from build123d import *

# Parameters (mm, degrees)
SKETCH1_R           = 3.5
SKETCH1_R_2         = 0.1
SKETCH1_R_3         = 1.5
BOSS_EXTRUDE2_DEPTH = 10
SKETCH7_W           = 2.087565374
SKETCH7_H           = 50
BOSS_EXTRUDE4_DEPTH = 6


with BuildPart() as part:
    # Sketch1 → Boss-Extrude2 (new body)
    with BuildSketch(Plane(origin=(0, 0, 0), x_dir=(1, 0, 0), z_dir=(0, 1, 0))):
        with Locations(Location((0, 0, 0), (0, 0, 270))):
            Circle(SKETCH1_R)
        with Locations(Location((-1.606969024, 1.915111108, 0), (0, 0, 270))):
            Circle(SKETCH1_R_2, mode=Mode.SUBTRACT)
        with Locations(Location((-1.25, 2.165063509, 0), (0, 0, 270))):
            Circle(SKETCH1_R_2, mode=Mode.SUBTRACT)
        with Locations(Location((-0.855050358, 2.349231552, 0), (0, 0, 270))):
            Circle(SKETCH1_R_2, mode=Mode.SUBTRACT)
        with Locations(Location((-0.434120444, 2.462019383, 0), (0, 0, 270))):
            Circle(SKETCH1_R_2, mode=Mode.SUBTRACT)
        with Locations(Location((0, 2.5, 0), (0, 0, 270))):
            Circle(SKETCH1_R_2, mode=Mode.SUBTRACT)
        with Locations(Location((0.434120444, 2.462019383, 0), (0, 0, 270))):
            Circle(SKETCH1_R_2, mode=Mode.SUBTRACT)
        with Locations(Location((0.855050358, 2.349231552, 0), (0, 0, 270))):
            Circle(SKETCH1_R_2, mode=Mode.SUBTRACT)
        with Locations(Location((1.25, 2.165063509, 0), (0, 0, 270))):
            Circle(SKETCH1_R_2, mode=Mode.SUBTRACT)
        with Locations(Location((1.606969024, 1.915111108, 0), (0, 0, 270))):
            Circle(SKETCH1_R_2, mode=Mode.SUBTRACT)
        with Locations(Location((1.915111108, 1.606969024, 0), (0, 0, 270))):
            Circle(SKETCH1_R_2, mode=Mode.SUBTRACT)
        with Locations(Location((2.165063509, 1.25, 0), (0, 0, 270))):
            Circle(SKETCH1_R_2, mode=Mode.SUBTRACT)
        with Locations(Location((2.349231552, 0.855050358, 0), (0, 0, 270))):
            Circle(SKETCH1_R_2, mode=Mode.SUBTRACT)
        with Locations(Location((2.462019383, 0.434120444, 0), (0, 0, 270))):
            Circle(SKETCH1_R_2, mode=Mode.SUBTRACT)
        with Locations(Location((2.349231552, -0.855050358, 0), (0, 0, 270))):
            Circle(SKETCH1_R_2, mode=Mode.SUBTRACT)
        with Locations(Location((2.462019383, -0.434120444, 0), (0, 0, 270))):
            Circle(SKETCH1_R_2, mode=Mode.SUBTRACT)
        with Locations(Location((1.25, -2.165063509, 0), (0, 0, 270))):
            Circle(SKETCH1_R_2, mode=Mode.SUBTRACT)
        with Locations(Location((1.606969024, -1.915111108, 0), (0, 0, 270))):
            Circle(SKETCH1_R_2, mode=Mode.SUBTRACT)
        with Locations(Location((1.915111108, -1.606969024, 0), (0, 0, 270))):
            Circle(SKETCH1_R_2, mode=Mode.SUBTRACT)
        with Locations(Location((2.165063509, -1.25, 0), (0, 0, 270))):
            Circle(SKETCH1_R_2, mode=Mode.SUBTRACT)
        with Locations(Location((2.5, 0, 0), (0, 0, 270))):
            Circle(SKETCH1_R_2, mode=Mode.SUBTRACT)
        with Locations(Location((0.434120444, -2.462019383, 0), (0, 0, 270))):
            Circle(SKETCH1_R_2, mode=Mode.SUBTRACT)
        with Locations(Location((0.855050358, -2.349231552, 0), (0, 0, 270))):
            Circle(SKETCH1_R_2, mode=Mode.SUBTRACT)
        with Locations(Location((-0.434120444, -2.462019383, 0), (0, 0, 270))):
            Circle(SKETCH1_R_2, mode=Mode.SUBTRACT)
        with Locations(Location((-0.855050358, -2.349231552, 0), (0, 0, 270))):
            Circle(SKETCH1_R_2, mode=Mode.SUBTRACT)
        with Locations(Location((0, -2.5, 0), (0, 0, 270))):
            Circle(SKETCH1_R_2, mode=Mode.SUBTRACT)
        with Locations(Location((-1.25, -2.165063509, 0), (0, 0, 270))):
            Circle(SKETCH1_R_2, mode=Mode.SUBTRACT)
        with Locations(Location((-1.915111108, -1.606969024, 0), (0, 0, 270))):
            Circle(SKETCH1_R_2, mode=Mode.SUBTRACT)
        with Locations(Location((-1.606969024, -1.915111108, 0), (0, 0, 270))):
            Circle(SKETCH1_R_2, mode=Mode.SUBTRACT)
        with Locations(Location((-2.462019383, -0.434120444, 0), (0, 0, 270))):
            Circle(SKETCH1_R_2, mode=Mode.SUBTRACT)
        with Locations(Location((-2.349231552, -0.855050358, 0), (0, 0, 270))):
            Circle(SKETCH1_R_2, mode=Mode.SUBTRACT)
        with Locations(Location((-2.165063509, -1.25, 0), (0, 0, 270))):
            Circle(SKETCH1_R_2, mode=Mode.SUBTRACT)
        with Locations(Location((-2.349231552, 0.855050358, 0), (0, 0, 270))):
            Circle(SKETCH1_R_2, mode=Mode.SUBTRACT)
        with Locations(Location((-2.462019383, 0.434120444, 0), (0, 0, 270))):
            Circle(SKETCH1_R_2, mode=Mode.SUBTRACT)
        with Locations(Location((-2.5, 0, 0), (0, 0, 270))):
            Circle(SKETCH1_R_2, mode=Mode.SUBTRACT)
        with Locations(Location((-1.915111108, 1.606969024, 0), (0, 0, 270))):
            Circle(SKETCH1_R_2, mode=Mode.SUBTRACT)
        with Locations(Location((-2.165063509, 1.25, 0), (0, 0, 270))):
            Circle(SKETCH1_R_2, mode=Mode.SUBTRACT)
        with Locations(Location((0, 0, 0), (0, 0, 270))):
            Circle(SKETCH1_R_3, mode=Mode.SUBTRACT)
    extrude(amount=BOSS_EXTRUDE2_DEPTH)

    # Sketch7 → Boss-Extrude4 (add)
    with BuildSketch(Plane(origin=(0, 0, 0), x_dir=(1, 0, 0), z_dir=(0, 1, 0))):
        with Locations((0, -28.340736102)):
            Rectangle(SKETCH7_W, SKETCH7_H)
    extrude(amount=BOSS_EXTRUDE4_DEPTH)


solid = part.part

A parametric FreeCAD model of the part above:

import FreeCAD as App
import Part
import Sketcher


def add_polygon(sketch, points):
    """Adds a closed chain of lines whose ends are joined by coincident constraints."""
    first, n = sketch.GeometryCount, len(points)
    for a, b in zip(points, points[1:] + points[:1]):
        sketch.addGeometry(Part.LineSegment(App.Vector(*a, 0), App.Vector(*b, 0)), False)
    for i in range(n):
        sketch.addConstraint(Sketcher.Constraint("Coincident", first + i, 2, first + (i + 1) % n, 1))

doc = App.newDocument("Part")
body = doc.addObject("PartDesign::Body", "Body")

sketch1 = body.newObject("Sketcher::SketchObject", "Sketch")
sketch1.AttachmentSupport = (doc.getObject("XZ_Plane"), [""])
sketch1.MapMode = "FlatFace"
sketch1.addGeometry(Part.Circle(App.Vector(0, 0, 0), App.Vector(0, 0, 1), 3.5), False)
sketch1.addGeometry(Part.Circle(App.Vector(-1.92, -1.61, 0), App.Vector(0, 0, 1), 0.1), False)
sketch1.addGeometry(Part.Circle(App.Vector(-1.61, -1.92, 0), App.Vector(0, 0, 1), 0.1), False)
sketch1.addGeometry(Part.Circle(App.Vector(-2.35, -0.86, 0), App.Vector(0, 0, 1), 0.1), False)
sketch1.addGeometry(Part.Circle(App.Vector(-2.17, -1.25, 0), App.Vector(0, 0, 1), 0.1), False)
sketch1.addGeometry(Part.Circle(App.Vector(-2.46, -0.43, 0), App.Vector(0, 0, 1), 0.1), False)
sketch1.addGeometry(Part.Circle(App.Vector(-1.25, -2.17, 0), App.Vector(0, 0, 1), 0.1), False)
sketch1.addGeometry(Part.Circle(App.Vector(-0.86, -2.35, 0), App.Vector(0, 0, 1), 0.1), False)
sketch1.addGeometry(Part.Circle(App.Vector(-0.43, -2.46, 0), App.Vector(0, 0, 1), 0.1), False)
sketch1.addGeometry(Part.Circle(App.Vector(0, -2.5, 0), App.Vector(0, 0, 1), 0.1), False)
sketch1.addGeometry(Part.Circle(App.Vector(-2.5, 0, 0), App.Vector(0, 0, 1), 0.1), False)
sketch1.addGeometry(Part.Circle(App.Vector(-2.46, 0.43, 0), App.Vector(0, 0, 1), 0.1), False)
sketch1.addGeometry(Part.Circle(App.Vector(-2.35, 0.86, 0), App.Vector(0, 0, 1), 0.1), False)
sketch1.addGeometry(Part.Circle(App.Vector(-2.17, 1.25, 0), App.Vector(0, 0, 1), 0.1), False)
sketch1.addGeometry(Part.Circle(App.Vector(-1.92, 1.61, 0), App.Vector(0, 0, 1), 0.1), False)
sketch1.addGeometry(Part.Circle(App.Vector(-1.61, 1.92, 0), App.Vector(0, 0, 1), 0.1), False)
sketch1.addGeometry(Part.Circle(App.Vector(-1.25, 2.17, 0), App.Vector(0, 0, 1), 0.1), False)
sketch1.addGeometry(Part.Circle(App.Vector(-0.86, 2.35, 0), App.Vector(0, 0, 1), 0.1), False)
sketch1.addGeometry(Part.Circle(App.Vector(-0.43, 2.46, 0), App.Vector(0, 0, 1), 0.1), False)
sketch1.addGeometry(Part.Circle(App.Vector(0.43, -2.46, 0), App.Vector(0, 0, 1), 0.1), False)
sketch1.addGeometry(Part.Circle(App.Vector(0.86, -2.35, 0), App.Vector(0, 0, 1), 0.1), False)
sketch1.addGeometry(Part.Circle(App.Vector(1.25, -2.17, 0), App.Vector(0, 0, 1), 0.1), False)
sketch1.addGeometry(Part.Circle(App.Vector(1.61, -1.92, 0), App.Vector(0, 0, 1), 0.1), False)
sketch1.addGeometry(Part.Circle(App.Vector(1.92, -1.61, 0), App.Vector(0, 0, 1), 0.1), False)
sketch1.addGeometry(Part.Circle(App.Vector(2.17, -1.25, 0), App.Vector(0, 0, 1), 0.1), False)
sketch1.addGeometry(Part.Circle(App.Vector(2.35, -0.86, 0), App.Vector(0, 0, 1), 0.1), False)
sketch1.addGeometry(Part.Circle(App.Vector(2.46, -0.43, 0), App.Vector(0, 0, 1), 0.1), False)
sketch1.addGeometry(Part.Circle(App.Vector(2.5, 0, 0), App.Vector(0, 0, 1), 0.1), False)
sketch1.addGeometry(Part.Circle(App.Vector(0, 0, 0), App.Vector(0, 0, 1), 1.5), False)
sketch1.addGeometry(Part.Circle(App.Vector(0, 2.5, 0), App.Vector(0, 0, 1), 0.1), False)
sketch1.addGeometry(Part.Circle(App.Vector(0.43, 2.46, 0), App.Vector(0, 0, 1), 0.1), False)
sketch1.addGeometry(Part.Circle(App.Vector(0.86, 2.35, 0), App.Vector(0, 0, 1), 0.1), False)
sketch1.addGeometry(Part.Circle(App.Vector(1.25, 2.17, 0), App.Vector(0, 0, 1), 0.1), False)
sketch1.addGeometry(Part.Circle(App.Vector(2.46, 0.43, 0), App.Vector(0, 0, 1), 0.1), False)
sketch1.addGeometry(Part.Circle(App.Vector(2.17, 1.25, 0), App.Vector(0, 0, 1), 0.1), False)
sketch1.addGeometry(Part.Circle(App.Vector(2.35, 0.86, 0), App.Vector(0, 0, 1), 0.1), False)
sketch1.addGeometry(Part.Circle(App.Vector(1.61, 1.92, 0), App.Vector(0, 0, 1), 0.1), False)
sketch1.addGeometry(Part.Circle(App.Vector(1.92, 1.61, 0), App.Vector(0, 0, 1), 0.1), False)
sketch1.addConstraint(Sketcher.Constraint("Coincident", 0, 3, -1, 1))
sketch1.addConstraint(Sketcher.Constraint("Coincident", 28, 3, -1, 1))
sketch1.addConstraint(Sketcher.Constraint("Equal", 1, 2))
sketch1.addConstraint(Sketcher.Constraint("Equal", 2, 3))
sketch1.addConstraint(Sketcher.Constraint("Equal", 3, 4))
sketch1.addConstraint(Sketcher.Constraint("Equal", 4, 5))
sketch1.addConstraint(Sketcher.Constraint("Equal", 5, 6))
sketch1.addConstraint(Sketcher.Constraint("Equal", 6, 7))
sketch1.addConstraint(Sketcher.Constraint("Equal", 7, 8))
sketch1.addConstraint(Sketcher.Constraint("Equal", 8, 9))
sketch1.addConstraint(Sketcher.Constraint("Equal", 9, 10))
sketch1.addConstraint(Sketcher.Constraint("Equal", 10, 11))
sketch1.addConstraint(Sketcher.Constraint("Equal", 11, 12))
sketch1.addConstraint(Sketcher.Constraint("Equal", 12, 13))
sketch1.addConstraint(Sketcher.Constraint("Equal", 13, 14))
sketch1.addConstraint(Sketcher.Constraint("Equal", 14, 15))
sketch1.addConstraint(Sketcher.Constraint("Equal", 15, 16))
sketch1.addConstraint(Sketcher.Constraint("Equal", 16, 17))
sketch1.addConstraint(Sketcher.Constraint("Equal", 17, 18))
sketch1.addConstraint(Sketcher.Constraint("Equal", 18, 19))
sketch1.addConstraint(Sketcher.Constraint("Equal", 19, 20))
sketch1.addConstraint(Sketcher.Constraint("Equal", 20, 21))
sketch1.addConstraint(Sketcher.Constraint("Equal", 21, 22))
sketch1.addConstraint(Sketcher.Constraint("Equal", 22, 23))
sketch1.addConstraint(Sketcher.Constraint("Equal", 23, 24))
sketch1.addConstraint(Sketcher.Constraint("Equal", 24, 25))
sketch1.addConstraint(Sketcher.Constraint("Equal", 25, 26))
sketch1.addConstraint(Sketcher.Constraint("Equal", 26, 27))
sketch1.addConstraint(Sketcher.Constraint("Equal", 27, 29))
sketch1.addConstraint(Sketcher.Constraint("Equal", 29, 30))
sketch1.addConstraint(Sketcher.Constraint("Equal", 30, 31))
sketch1.addConstraint(Sketcher.Constraint("Equal", 31, 32))
sketch1.addConstraint(Sketcher.Constraint("Equal", 32, 33))
sketch1.addConstraint(Sketcher.Constraint("Equal", 33, 34))
sketch1.addConstraint(Sketcher.Constraint("Equal", 34, 35))
sketch1.addConstraint(Sketcher.Constraint("Equal", 35, 36))
sketch1.addConstraint(Sketcher.Constraint("Equal", 36, 37))
sketch1.addConstraint(Sketcher.Constraint("Symmetric", 18, 3, 19, 3, -1, 1))
sketch1.addConstraint(Sketcher.Constraint("Symmetric", 17, 3, 20, 3, -1, 1))
sketch1.addConstraint(Sketcher.Constraint("Symmetric", 16, 3, 21, 3, -1, 1))
sketch1.addConstraint(Sketcher.Constraint("Symmetric", 15, 3, 22, 3, -1, 1))
sketch1.addConstraint(Sketcher.Constraint("Symmetric", 14, 3, 23, 3, -1, 1))
sketch1.addConstraint(Sketcher.Constraint("Symmetric", 13, 3, 24, 3, -1, 1))
sketch1.addConstraint(Sketcher.Constraint("Symmetric", 12, 3, 25, 3, -1, 1))
sketch1.addConstraint(Sketcher.Constraint("Symmetric", 11, 3, 26, 3, -1, 1))
sketch1.addConstraint(Sketcher.Constraint("Symmetric", 10, 3, 27, 3, -1, 1))
sketch1.addConstraint(Sketcher.Constraint("Symmetric", 9, 3, 29, 3, -1, 1))
sketch1.addConstraint(Sketcher.Constraint("Symmetric", 8, 3, 30, 3, -1, 1))
sketch1.addConstraint(Sketcher.Constraint("Symmetric", 7, 3, 31, 3, -1, 1))
sketch1.addConstraint(Sketcher.Constraint("Symmetric", 6, 3, 32, 3, -1, 1))
sketch1.addConstraint(Sketcher.Constraint("Symmetric", 5, 3, 33, 3, -1, 1))
sketch1.addConstraint(Sketcher.Constraint("Symmetric", 4, 3, 34, 3, -1, 1))
sketch1.addConstraint(Sketcher.Constraint("Symmetric", 3, 3, 35, 3, -1, 1))
sketch1.addConstraint(Sketcher.Constraint("Symmetric", 2, 3, 36, 3, -1, 1))
sketch1.addConstraint(Sketcher.Constraint("Symmetric", 1, 3, 37, 3, -1, 1))
sketch1.addConstraint(Sketcher.Constraint("Symmetric", 8, 3, 19, 3, -2))
sketch1.addConstraint(Sketcher.Constraint("Symmetric", 7, 3, 20, 3, -2))
sketch1.addConstraint(Sketcher.Constraint("Symmetric", 6, 3, 21, 3, -2))
sketch1.addConstraint(Sketcher.Constraint("Symmetric", 2, 3, 22, 3, -2))
sketch1.addConstraint(Sketcher.Constraint("Symmetric", 1, 3, 23, 3, -2))
sketch1.addConstraint(Sketcher.Constraint("Symmetric", 4, 3, 24, 3, -2))
sketch1.addConstraint(Sketcher.Constraint("Symmetric", 3, 3, 25, 3, -2))
sketch1.addConstraint(Sketcher.Constraint("Symmetric", 5, 3, 26, 3, -2))
sketch1.addConstraint(Sketcher.Constraint("PointOnObject", 9, 3, -2))
sketch1.addConstraint(Sketcher.Constraint("PointOnObject", 10, 3, -1))
sketch1.addConstraint(Sketcher.Constraint("Diameter", 0, 7.0))
sketch1.addConstraint(Sketcher.Constraint("Diameter", 28, 3.0))
sketch1.addConstraint(Sketcher.Constraint("Diameter", 1, 0.2))
sketch1.addConstraint(Sketcher.Constraint("DistanceY", 9, 3, -1, 1, 2.5))
sketch1.addConstraint(Sketcher.Constraint("DistanceX", 10, 3, -1, 1, 2.5))
sketch1.addConstraint(Sketcher.Constraint("DistanceY", 4, 3, -1, 1, 1.25))
sketch1.addConstraint(Sketcher.Constraint("DistanceX", 6, 3, -1, 1, 1.25))
sketch1.addConstraint(Sketcher.Constraint("DistanceY", 3, 3, 12, 3, 1.710101))
sketch1.addConstraint(Sketcher.Constraint("DistanceX", 7, 3, 20, 3, 1.710101))
sketch1.addConstraint(Sketcher.Constraint("DistanceX", 1, 3, -1, 1, 1.915111))
sketch1.addConstraint(Sketcher.Constraint("DistanceY", 1, 3, -1, 1, 1.606969))
sketch1.addConstraint(Sketcher.Constraint("DistanceX", 2, 3, -1, 1, 1.606969))
sketch1.addConstraint(Sketcher.Constraint("DistanceY", 2, 3, -1, 1, 1.915111))
sketch1.addConstraint(Sketcher.Constraint("DistanceX", 3, 3, -1, 1, 2.349232))
sketch1.addConstraint(Sketcher.Constraint("DistanceX", 5, 3, -1, 1, 2.462019))
sketch1.addConstraint(Sketcher.Constraint("DistanceY", 5, 3, -1, 1, 0.43412))
sketch1.addConstraint(Sketcher.Constraint("DistanceY", 7, 3, -1, 1, 2.349232))
sketch1.addConstraint(Sketcher.Constraint("DistanceX", 8, 3, -1, 1, 0.43412))
sketch1.addConstraint(Sketcher.Constraint("DistanceY", 8, 3, -1, 1, 2.462019))
sketch1.addConstraint(Sketcher.Constraint("DistanceX", 3, 3, 4, 3, 0.184168))
sketch1.addConstraint(Sketcher.Constraint("DistanceY", 7, 3, 6, 3, 0.184168))
pad1 = body.newObject("PartDesign::Pad", "Pad")
pad1.Profile = sketch1
pad1.Length = 10
pad1.Reversed = True

sketch2 = body.newObject("Sketcher::SketchObject", "Sketch001")
sketch2.AttachmentSupport = (doc.getObject("XZ_Plane"), [""])
sketch2.MapMode = "FlatFace"
add_polygon(sketch2, [(-1, 3.3), (-1, 53.3), (1, 53.3), (1, 3.3)])
sketch2.addConstraint(Sketcher.Constraint("Vertical", 0))
sketch2.addConstraint(Sketcher.Constraint("Horizontal", 1))
sketch2.addConstraint(Sketcher.Constraint("Vertical", 2))
sketch2.addConstraint(Sketcher.Constraint("Horizontal", 3))
sketch2.addConstraint(Sketcher.Constraint("DistanceY", 0, 1, 0, 2, 50.0))
sketch2.addConstraint(Sketcher.Constraint("DistanceX", 1, 1, 1, 2, 2.087565))
sketch2.addConstraint(Sketcher.Constraint("DistanceX", 0, 2, -1, 1, 1.043783))
sketch2.addConstraint(Sketcher.Constraint("DistanceY", -1, 1, 0, 2, 53.340736))
pad2 = body.newObject("PartDesign::Pad", "Pad001")
pad2.Profile = sketch2
pad2.Length = 6
pad2.Reversed = True

doc.recompute()
